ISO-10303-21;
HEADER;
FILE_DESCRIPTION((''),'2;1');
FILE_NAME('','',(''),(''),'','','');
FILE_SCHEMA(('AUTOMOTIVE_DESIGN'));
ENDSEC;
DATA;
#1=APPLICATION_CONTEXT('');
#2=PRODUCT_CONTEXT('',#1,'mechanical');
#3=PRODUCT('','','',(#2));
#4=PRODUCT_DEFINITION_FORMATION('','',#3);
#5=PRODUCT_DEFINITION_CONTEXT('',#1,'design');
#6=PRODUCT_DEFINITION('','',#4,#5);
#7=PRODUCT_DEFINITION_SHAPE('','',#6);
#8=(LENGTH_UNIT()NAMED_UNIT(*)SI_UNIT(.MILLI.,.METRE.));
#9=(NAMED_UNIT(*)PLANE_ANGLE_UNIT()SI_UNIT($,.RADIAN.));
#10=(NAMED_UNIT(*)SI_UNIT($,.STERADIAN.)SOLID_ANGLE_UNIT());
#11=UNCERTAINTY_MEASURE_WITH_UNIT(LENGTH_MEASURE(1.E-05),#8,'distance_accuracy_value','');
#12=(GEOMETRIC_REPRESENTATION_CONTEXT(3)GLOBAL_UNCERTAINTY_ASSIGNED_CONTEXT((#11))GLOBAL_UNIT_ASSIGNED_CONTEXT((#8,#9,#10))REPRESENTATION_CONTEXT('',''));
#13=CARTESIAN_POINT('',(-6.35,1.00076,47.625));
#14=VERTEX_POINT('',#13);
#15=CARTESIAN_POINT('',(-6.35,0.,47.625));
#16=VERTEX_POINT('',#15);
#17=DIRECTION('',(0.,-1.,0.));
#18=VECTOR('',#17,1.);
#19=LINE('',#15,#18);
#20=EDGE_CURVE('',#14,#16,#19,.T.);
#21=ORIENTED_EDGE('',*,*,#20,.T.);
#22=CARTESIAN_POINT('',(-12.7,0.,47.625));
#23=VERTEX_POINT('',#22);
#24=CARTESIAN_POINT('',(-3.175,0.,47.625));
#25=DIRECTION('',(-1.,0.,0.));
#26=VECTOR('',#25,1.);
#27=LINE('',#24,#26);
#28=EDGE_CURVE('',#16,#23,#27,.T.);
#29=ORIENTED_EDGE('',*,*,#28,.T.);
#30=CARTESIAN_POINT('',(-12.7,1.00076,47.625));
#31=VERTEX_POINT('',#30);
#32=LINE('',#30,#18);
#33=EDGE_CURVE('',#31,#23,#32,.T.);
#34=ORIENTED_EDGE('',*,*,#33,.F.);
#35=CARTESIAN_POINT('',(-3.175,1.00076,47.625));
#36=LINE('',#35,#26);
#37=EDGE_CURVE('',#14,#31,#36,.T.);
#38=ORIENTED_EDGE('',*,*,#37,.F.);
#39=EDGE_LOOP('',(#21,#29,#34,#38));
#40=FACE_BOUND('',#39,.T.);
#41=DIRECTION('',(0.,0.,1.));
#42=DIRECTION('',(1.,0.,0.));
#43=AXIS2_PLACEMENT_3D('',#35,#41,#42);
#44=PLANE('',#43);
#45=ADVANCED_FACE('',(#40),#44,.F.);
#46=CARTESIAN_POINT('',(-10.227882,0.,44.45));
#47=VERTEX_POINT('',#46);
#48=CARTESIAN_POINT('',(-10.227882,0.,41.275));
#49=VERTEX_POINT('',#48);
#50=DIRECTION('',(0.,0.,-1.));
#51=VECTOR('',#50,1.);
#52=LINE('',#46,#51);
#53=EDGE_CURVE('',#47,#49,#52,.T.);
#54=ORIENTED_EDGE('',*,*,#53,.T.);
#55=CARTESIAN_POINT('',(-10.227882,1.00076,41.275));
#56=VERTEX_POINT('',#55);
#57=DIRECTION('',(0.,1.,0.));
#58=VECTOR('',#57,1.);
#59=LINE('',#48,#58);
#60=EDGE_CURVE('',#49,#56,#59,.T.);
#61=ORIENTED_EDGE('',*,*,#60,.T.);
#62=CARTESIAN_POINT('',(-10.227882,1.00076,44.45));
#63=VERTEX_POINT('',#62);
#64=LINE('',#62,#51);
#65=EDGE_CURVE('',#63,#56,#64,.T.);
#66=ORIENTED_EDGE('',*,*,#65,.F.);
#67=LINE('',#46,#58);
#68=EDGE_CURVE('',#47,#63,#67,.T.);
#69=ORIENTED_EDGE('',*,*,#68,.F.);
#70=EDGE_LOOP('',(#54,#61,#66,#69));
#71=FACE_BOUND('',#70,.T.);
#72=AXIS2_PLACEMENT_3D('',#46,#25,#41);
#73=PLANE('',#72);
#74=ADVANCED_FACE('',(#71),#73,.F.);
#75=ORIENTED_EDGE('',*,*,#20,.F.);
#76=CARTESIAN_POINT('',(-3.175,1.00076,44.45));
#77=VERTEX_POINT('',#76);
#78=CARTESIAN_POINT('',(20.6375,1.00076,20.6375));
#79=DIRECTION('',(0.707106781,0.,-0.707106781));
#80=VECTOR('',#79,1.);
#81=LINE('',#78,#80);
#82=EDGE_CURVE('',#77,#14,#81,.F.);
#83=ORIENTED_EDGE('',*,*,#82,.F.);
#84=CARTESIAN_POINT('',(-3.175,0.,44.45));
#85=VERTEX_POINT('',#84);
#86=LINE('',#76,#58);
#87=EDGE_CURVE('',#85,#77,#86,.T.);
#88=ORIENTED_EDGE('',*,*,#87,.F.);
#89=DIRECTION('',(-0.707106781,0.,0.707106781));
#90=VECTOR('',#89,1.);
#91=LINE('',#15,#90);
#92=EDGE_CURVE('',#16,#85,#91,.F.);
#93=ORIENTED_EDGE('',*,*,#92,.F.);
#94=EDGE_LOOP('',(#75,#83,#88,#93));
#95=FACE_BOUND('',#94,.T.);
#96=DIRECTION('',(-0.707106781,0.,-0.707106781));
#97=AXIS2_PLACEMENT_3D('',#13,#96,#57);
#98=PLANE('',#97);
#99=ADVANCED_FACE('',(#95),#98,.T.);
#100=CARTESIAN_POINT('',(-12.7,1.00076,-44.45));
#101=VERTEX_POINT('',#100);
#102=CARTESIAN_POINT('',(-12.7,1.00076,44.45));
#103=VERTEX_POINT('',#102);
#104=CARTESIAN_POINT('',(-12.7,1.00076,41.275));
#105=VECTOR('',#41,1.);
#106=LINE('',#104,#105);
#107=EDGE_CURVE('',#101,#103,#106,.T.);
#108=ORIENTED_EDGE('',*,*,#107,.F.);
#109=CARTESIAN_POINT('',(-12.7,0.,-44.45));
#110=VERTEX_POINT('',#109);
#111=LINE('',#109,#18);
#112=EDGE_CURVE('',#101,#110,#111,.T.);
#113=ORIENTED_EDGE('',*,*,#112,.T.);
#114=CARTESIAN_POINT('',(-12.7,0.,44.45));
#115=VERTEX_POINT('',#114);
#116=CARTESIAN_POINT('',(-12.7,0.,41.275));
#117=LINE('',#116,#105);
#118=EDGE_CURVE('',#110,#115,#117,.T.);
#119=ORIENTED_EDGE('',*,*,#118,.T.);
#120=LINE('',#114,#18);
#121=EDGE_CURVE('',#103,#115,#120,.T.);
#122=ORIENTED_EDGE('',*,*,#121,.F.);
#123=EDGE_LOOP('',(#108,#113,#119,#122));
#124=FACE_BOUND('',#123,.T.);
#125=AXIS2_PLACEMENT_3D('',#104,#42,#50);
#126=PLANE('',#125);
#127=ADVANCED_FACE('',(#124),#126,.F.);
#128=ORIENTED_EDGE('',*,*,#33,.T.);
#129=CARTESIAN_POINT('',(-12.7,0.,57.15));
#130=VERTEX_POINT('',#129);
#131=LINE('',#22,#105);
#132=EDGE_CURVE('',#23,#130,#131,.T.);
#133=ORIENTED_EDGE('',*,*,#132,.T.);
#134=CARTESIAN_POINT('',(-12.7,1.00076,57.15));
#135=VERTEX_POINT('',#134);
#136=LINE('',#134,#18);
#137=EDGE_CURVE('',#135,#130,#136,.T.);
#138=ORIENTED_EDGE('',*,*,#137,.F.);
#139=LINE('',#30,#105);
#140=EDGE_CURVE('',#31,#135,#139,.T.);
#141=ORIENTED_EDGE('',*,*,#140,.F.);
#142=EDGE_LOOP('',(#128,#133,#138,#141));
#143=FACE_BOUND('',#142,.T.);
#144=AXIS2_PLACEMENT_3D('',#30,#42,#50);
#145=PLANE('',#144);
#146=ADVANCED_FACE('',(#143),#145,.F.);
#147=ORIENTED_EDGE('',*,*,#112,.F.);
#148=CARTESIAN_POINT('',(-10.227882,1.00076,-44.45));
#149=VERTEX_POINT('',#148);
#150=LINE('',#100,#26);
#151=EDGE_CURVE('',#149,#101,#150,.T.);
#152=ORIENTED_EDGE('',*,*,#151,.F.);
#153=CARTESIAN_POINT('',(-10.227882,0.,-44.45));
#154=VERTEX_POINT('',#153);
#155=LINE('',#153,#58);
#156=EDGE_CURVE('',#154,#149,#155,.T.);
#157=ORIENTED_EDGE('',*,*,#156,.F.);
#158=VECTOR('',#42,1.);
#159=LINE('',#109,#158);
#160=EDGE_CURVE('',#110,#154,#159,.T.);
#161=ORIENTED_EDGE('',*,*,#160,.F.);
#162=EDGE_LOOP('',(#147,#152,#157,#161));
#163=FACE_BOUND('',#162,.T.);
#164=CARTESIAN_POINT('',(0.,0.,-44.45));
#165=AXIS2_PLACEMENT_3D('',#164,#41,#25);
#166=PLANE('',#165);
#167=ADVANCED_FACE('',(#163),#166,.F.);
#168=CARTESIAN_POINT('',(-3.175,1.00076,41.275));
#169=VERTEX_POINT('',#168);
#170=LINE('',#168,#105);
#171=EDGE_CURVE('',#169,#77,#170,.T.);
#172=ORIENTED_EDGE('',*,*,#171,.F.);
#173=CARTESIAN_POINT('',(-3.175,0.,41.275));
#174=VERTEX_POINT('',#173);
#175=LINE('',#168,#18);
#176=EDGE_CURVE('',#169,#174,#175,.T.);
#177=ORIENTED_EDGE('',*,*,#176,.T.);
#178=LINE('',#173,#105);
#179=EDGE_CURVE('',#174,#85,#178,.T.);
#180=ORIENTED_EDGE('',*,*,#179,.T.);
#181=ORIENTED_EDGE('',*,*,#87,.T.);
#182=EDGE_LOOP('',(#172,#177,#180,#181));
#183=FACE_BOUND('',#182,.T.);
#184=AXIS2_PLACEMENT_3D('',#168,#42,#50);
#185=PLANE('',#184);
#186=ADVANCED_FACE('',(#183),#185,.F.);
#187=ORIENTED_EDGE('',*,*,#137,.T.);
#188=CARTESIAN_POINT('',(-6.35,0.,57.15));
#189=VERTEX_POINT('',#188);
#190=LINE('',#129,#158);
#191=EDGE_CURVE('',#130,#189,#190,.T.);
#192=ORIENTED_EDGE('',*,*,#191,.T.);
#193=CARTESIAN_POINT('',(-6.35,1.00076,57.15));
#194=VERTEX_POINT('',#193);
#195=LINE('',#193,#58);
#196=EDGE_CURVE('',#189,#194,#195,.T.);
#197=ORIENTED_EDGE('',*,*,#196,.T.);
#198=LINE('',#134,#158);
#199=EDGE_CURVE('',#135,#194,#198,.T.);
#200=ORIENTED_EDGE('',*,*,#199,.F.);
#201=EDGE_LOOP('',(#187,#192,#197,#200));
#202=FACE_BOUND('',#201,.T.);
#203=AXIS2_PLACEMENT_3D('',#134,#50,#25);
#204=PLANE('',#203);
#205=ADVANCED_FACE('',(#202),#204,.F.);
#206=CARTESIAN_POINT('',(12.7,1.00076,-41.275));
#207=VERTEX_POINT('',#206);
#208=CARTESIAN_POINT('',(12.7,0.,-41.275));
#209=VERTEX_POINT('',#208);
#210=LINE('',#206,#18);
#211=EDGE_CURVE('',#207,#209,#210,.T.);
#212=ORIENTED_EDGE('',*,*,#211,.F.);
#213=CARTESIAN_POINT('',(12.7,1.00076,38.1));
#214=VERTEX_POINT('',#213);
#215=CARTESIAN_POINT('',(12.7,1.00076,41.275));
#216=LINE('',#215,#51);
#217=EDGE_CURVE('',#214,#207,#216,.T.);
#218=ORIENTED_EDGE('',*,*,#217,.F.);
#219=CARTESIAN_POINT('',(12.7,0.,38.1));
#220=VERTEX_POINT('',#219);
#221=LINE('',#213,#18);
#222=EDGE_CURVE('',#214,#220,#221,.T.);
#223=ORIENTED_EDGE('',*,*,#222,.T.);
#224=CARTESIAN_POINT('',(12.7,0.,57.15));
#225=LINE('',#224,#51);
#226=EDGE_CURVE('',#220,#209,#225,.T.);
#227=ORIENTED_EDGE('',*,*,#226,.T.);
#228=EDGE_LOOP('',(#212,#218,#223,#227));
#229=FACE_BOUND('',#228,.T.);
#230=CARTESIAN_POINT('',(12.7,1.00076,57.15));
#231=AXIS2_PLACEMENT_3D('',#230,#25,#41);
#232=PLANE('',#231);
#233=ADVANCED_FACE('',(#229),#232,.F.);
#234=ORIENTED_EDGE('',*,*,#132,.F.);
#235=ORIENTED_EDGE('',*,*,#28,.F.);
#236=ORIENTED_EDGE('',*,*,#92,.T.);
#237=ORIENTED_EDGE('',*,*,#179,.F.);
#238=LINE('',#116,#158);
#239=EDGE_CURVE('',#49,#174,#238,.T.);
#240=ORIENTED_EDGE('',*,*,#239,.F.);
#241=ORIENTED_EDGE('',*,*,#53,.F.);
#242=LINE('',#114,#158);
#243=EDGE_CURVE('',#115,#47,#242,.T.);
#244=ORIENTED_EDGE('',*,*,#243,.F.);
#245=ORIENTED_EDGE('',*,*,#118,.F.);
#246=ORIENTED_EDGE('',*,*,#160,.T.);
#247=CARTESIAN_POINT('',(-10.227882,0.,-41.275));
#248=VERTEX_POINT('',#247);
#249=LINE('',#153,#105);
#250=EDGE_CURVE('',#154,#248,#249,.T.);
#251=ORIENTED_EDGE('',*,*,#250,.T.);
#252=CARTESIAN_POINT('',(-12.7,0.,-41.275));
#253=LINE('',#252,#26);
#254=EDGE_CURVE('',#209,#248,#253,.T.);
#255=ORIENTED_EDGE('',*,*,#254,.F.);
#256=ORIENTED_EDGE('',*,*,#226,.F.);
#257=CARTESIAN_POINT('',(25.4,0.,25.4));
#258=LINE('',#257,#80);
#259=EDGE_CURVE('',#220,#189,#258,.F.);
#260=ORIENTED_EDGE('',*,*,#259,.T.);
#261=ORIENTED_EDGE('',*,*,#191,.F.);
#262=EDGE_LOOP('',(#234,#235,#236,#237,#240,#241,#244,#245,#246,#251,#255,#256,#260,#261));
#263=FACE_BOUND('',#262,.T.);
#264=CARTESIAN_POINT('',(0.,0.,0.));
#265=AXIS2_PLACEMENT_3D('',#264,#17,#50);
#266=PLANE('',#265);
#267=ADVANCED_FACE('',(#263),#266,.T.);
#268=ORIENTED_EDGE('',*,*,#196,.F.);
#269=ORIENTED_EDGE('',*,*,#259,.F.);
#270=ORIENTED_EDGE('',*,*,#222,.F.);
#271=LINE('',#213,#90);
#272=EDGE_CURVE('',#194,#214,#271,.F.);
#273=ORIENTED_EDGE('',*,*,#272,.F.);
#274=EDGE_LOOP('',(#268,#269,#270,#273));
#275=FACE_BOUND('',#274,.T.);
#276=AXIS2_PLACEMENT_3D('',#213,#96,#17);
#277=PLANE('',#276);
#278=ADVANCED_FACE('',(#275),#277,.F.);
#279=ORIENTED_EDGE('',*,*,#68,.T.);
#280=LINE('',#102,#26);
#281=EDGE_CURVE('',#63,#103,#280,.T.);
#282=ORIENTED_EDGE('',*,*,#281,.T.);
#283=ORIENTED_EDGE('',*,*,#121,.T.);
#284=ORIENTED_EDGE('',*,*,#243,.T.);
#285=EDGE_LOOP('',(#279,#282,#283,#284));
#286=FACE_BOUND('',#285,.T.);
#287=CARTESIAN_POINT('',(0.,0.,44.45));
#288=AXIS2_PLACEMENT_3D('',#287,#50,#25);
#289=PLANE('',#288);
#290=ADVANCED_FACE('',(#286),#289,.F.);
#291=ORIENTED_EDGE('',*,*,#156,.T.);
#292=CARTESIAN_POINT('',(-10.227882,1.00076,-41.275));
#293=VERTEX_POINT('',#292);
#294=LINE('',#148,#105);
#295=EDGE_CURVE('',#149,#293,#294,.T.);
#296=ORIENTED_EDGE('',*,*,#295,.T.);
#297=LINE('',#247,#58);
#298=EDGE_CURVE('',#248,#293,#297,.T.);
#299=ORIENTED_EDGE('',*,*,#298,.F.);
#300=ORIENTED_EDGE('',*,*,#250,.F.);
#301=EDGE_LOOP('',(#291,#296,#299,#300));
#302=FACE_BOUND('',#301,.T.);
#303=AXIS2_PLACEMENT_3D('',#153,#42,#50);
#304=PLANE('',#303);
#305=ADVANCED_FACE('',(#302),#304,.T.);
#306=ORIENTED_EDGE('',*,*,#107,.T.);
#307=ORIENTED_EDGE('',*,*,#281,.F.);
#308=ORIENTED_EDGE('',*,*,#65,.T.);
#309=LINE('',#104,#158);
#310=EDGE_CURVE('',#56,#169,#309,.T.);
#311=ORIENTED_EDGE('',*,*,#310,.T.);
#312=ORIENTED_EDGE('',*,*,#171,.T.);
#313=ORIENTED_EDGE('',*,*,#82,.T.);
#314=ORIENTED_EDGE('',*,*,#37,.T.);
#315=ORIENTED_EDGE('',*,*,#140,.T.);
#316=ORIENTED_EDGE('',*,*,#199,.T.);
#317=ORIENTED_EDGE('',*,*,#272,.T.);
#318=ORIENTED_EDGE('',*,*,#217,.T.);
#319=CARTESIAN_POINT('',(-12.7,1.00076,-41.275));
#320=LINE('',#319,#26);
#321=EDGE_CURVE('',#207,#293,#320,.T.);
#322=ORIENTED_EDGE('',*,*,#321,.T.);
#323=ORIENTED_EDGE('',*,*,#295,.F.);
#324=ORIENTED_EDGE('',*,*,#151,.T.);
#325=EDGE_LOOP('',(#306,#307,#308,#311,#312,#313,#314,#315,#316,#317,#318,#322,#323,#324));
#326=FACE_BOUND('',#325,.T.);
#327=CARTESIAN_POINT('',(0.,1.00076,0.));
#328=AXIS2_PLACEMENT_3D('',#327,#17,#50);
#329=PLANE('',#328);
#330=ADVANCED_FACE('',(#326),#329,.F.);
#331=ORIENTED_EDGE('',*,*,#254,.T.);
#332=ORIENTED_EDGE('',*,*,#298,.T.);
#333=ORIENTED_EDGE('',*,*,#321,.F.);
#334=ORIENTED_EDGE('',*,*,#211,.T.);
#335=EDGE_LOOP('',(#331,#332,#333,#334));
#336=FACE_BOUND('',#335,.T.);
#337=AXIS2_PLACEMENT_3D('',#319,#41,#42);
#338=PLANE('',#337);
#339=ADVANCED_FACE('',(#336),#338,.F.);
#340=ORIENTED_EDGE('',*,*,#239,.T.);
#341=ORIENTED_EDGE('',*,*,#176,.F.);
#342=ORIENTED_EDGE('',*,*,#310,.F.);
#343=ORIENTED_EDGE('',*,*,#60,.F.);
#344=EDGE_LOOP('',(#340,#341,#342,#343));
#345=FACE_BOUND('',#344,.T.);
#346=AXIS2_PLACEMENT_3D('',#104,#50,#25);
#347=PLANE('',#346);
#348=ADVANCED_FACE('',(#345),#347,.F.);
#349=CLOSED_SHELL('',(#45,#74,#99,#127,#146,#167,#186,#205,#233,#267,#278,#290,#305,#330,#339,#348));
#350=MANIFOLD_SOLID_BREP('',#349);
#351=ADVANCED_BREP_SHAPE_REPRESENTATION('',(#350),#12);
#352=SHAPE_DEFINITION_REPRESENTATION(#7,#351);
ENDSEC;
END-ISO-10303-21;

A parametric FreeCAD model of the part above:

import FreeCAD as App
import Part
import Sketcher

V = App.Vector
Q = App.Units.Quantity


def edges_at(feature, points):
    """Names of the edges that pass closest to the given points."""
    edges = feature.Shape.Edges
    near = lambda p: min(range(len(edges)), key=lambda i: edges[i].distToShape(Part.Vertex(*p))[0])
    return sorted({f"Edge{near(p) + 1}" for p in points})


def add_polygon(sketch, points):
    """Adds a closed chain of lines whose ends are joined by coincident constraints."""
    first, n = sketch.GeometryCount, len(points)
    for a, b in zip(points, points[1:] + points[:1]):
        sketch.addGeometry(Part.LineSegment(App.Vector(*a, 0), App.Vector(*b, 0)), False)
    for i in range(n):
        sketch.addConstraint(Sketcher.Constraint("Coincident", first + i, 2, first + (i + 1) % n, 1))

doc = App.newDocument("Part")
body = doc.addObject("PartDesign::Body", "Body")

# Sketch on XZ plane
sketch1 = body.newObject("Sketcher::SketchObject", "Sketch")
sketch1.AttachmentSupport = (doc.getObject("XZ_Plane"), [""])
sketch1.MapMode = "FlatFace"
add_polygon(sketch1, [(-3, 41), (-3, 48), (-13, 48), (-13, 57), (13, 57), (13, -41), (-13, -41), (-13, 41)])  # lines 0-7
sketch1.addConstraint(Sketcher.Constraint("Vertical", 0))
sketch1.addConstraint(Sketcher.Constraint("Horizontal", 1))
sketch1.addConstraint(Sketcher.Constraint("Vertical", 2))
sketch1.addConstraint(Sketcher.Constraint("Horizontal", 3))
sketch1.addConstraint(Sketcher.Constraint("Vertical", 4))
sketch1.addConstraint(Sketcher.Constraint("Horizontal", 5))
sketch1.addConstraint(Sketcher.Constraint("Vertical", 6))
sketch1.addConstraint(Sketcher.Constraint("Horizontal", 7))
sketch1.addConstraint(Sketcher.Constraint("Symmetric", 4, 2, 6, 2, -1, 1))
sketch1.addConstraint(Sketcher.Constraint("Vertical", 2, 2, 5, 2))
sketch1.addConstraint(Sketcher.Constraint("Equal", 7, 2))
sketch1.addConstraint(Sketcher.Constraint("DistanceX", 3, 1, 3, 2, Q("1 in")))
sketch1.addConstraint(Sketcher.Constraint("DistanceY", 0, 1, 0, 2, Q("0.25 in")))
sketch1.addConstraint(Sketcher.Constraint("DistanceY", 6, 1, 6, 2, Q("3.25 in")))
sketch1.addConstraint(Sketcher.Constraint("DistanceX", 1, 2, 1, 1, Q("0.375 in")))
pad1 = body.newObject("PartDesign::Pad", "Pad")
pad1.Profile = sketch1
pad1.Length = Q("0.0394 in")
pad1.Reversed = True

# Sketch on XY plane
sketch2 = body.newObject("Sketcher::SketchObject", "Sketch001")
sketch2.AttachmentSupport = (doc.getObject("XY_Plane"), [""])
sketch2.MapMode = "FlatFace"
sketch2.AttachmentOffset = App.Placement(V(0, 0, 1.625 * 25.4), App.Rotation())
add_polygon(sketch2, [(-12.7, 1), (-12.7, 0), (-10.2, 0), (-10.2, 1)])  # lines 0-3
sketch2.addConstraint(Sketcher.Constraint("Vertical", 0))
sketch2.addConstraint(Sketcher.Constraint("Horizontal", 1))
sketch2.addConstraint(Sketcher.Constraint("Vertical", 2))
sketch2.addConstraint(Sketcher.Constraint("Horizontal", 3))
sketch2.addConstraint(Sketcher.Constraint("PointOnObject", 0, 2, -1))
sketch2.addConstraint(Sketcher.Constraint("DistanceX", 0, 2, -1, 1, Q("0.5 in")))
sketch2.addConstraint(Sketcher.Constraint("DistanceY", 0, 2, 0, 1, Q("0.0394 in")))
sketch2.addConstraint(Sketcher.Constraint("DistanceX", 1, 1, 1, 2, Q("2.472118 mm")))
pad2 = body.newObject("PartDesign::Pad", "Pad001")
pad2.Profile = sketch2
pad2.Length = Q("0.125 in")
doc.recompute()

mirrored = body.newObject("PartDesign::Mirrored", "Mirrored")
mirrored.Originals = [pad2]
mirrored.MirrorPlane = (doc.getObject("XY_Plane"), [""])
body.Tip = mirrored
doc.recompute()

chamfer = body.newObject("PartDesign::Chamfer", "Chamfer")
chamfer.Base = (mirrored, edges_at(mirrored, [(12.7, 0.5, 57.15)]))
chamfer.Size = Q("0.75 in")
doc.recompute()

chamfer2 = body.newObject("PartDesign::Chamfer", "Chamfer001")
chamfer2.Base = (chamfer, edges_at(chamfer, [(-3.175, 0.5, 47.625)]))
chamfer2.Size = Q("0.125 in")

doc.recompute()
